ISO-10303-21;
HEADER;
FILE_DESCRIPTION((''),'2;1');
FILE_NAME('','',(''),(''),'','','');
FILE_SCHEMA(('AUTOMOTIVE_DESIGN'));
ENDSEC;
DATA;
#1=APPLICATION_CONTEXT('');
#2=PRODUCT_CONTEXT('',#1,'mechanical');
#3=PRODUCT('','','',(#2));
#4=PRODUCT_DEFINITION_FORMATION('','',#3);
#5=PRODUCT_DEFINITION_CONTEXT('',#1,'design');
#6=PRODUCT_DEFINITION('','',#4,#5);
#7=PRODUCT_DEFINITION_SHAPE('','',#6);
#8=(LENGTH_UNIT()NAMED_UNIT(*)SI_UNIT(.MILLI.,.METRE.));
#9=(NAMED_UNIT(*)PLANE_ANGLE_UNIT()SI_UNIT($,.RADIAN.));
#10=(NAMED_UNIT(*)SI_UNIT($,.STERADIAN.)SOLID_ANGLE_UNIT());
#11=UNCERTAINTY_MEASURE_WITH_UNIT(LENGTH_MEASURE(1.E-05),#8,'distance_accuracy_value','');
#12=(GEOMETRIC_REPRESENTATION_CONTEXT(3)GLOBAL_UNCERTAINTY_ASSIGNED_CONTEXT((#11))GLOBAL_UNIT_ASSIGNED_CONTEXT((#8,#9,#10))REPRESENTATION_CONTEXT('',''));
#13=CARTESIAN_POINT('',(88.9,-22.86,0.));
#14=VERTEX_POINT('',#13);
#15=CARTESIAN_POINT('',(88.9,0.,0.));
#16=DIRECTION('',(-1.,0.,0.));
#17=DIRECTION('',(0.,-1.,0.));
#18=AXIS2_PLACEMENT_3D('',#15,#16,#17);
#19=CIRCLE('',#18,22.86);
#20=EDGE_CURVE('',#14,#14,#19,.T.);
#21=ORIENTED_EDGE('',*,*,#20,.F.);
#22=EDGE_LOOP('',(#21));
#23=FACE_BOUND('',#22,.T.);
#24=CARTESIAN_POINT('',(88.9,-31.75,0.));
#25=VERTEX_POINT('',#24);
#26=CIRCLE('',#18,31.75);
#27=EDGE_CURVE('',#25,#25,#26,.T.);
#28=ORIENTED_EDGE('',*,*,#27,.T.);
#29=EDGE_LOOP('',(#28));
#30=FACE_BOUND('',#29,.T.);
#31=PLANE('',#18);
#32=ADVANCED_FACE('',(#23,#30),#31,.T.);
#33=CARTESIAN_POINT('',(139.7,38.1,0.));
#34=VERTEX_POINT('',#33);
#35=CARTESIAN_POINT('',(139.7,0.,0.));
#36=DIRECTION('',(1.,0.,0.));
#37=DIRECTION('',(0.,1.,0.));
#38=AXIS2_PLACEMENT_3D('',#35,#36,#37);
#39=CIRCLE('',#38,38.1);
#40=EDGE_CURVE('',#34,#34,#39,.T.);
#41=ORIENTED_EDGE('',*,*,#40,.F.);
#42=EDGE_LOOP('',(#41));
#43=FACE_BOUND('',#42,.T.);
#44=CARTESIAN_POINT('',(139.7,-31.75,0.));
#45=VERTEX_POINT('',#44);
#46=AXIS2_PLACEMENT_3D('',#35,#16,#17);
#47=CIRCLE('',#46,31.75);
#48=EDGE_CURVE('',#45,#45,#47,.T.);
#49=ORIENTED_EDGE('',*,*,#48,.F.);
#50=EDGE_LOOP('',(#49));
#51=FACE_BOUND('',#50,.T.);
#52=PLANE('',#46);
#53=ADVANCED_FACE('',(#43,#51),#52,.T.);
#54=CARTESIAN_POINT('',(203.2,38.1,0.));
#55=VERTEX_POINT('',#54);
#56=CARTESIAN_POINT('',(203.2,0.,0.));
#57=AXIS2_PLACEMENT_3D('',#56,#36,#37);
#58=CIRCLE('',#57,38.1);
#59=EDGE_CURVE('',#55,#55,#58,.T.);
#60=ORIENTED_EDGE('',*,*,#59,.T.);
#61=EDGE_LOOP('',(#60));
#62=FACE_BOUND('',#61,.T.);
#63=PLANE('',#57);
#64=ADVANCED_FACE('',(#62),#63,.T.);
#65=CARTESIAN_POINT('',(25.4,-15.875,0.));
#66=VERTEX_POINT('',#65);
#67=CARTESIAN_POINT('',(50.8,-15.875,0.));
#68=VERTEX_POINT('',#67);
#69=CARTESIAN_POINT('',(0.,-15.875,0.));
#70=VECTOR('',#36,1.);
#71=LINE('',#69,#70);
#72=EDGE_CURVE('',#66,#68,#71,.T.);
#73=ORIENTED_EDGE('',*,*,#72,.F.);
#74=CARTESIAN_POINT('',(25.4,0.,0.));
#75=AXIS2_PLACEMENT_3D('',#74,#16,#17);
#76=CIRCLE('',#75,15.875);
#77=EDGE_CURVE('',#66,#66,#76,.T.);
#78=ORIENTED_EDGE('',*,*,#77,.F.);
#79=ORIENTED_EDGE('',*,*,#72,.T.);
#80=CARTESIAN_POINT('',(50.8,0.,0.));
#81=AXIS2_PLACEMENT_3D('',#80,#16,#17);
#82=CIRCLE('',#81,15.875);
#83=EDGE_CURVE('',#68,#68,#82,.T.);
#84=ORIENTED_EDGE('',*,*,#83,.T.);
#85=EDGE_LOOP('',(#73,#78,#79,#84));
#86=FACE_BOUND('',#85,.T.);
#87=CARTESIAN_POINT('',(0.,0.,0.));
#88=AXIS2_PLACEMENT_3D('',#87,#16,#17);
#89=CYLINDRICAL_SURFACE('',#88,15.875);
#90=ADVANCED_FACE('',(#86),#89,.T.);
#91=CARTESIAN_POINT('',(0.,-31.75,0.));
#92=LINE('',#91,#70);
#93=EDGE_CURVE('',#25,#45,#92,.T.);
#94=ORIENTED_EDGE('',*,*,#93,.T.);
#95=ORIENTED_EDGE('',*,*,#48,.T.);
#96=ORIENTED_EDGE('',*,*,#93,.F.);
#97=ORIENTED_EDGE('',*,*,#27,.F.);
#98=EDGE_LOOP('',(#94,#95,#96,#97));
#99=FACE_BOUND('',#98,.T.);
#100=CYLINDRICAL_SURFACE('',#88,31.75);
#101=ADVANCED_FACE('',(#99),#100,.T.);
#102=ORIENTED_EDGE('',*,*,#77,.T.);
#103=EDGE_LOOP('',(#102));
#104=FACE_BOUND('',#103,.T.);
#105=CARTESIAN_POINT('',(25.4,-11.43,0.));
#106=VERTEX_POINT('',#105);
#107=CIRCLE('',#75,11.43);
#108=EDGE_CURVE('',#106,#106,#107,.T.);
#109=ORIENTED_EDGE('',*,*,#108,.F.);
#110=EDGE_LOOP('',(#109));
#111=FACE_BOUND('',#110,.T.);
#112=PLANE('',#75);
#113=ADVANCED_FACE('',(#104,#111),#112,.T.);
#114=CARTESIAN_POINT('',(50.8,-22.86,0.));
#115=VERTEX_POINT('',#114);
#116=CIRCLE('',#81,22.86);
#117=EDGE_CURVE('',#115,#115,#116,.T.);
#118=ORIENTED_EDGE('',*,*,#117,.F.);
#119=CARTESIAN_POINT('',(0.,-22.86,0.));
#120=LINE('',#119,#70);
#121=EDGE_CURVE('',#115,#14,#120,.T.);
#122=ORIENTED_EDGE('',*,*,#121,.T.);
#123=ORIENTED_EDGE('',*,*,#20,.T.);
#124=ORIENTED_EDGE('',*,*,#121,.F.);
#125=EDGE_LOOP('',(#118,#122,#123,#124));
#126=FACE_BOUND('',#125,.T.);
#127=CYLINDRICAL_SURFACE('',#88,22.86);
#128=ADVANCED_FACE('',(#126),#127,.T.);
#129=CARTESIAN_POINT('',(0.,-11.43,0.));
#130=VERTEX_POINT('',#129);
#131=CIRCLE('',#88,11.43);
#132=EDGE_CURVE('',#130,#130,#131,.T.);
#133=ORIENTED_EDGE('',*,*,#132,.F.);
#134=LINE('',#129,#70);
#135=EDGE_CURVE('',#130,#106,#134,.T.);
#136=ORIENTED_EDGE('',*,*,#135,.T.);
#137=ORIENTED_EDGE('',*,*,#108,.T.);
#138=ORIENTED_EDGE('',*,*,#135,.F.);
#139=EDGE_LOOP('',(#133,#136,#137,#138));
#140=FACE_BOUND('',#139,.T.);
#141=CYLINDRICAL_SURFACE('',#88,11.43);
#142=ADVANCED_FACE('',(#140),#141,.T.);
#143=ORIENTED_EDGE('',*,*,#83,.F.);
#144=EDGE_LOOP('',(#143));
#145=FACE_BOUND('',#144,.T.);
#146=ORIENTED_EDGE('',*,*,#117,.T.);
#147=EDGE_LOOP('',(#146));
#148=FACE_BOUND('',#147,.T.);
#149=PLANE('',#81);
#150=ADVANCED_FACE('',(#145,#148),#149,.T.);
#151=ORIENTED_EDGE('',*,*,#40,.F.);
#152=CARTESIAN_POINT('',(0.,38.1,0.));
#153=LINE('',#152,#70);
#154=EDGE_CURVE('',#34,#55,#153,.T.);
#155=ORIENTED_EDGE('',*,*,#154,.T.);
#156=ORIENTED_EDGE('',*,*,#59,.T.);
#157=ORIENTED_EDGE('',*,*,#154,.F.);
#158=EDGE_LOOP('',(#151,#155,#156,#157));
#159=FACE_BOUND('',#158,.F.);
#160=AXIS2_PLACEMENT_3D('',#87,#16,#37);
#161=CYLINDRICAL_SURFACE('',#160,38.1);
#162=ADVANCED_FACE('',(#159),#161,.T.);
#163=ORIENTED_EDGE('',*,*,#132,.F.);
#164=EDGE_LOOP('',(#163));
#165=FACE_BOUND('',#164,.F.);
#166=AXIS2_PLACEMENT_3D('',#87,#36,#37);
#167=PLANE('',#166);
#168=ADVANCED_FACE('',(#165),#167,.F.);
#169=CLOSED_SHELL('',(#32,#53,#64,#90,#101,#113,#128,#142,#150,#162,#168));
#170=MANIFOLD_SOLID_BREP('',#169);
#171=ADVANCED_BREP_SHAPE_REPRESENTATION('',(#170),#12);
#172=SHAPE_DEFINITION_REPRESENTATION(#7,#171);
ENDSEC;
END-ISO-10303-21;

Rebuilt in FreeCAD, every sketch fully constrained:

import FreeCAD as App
import Part
import Sketcher
from FreeCAD import Vector
Q = App.Units.Quantity

doc = App.newDocument("Part")
body = doc.addObject("PartDesign::Body", "Body")

sketch1 = doc.addObject("Sketcher::SketchObject", "Sketch")
body.addObject(sketch1)
sketch1.AttachmentSupport = (doc.YZ_Plane, [""])
sketch1.MapMode = "FlatFace"
sketch1.addGeometry(Part.Circle(Vector(0, 0, 0), Vector(0, 0, 1), 38), False)
sketch1.addConstraint(Sketcher.Constraint("Coincident", 0, 3, -1, 1))
sketch1.addConstraint(Sketcher.Constraint("Diameter", 0, Q("3 in")))
pad1 = doc.addObject("PartDesign::Pad", "Pad")
body.addObject(pad1)
pad1.Profile = sketch1
pad1.Length = Q("8 in")

sketch2 = doc.addObject("Sketcher::SketchObject", "Sketch001")
body.addObject(sketch2)
sketch2.AttachmentSupport = (doc.YZ_Plane, [""])
sketch2.MapMode = "FlatFace"
sketch2.addGeometry(Part.Circle(Vector(0, 0, 0), Vector(0, 0, 1), 38), False)
sketch2.addGeometry(Part.Circle(Vector(0, 0, 0), Vector(0, 0, 1), 32), False)
sketch2.addConstraint(Sketcher.Constraint("Coincident", 0, 3, -1, 1))
sketch2.addConstraint(Sketcher.Constraint("Coincident", 1, 3, -1, 1))
sketch2.addConstraint(Sketcher.Constraint("Diameter", 0, Q("3 in")))
sketch2.addConstraint(Sketcher.Constraint("Diameter", 1, Q("2.5 in")))
pocket1 = doc.addObject("PartDesign::Pocket", "Pocket")
body.addObject(pocket1)
pocket1.Profile = sketch2
pocket1.Length = Q("5.5 in")
pocket1.Reversed = True

sketch3 = doc.addObject("Sketcher::SketchObject", "Sketch002")
body.addObject(sketch3)
sketch3.AttachmentSupport = (doc.YZ_Plane, [""])
sketch3.MapMode = "FlatFace"
sketch3.addGeometry(Part.Circle(Vector(0, 0, 0), Vector(0, 0, 1), 32), False)
sketch3.addGeometry(Part.Circle(Vector(0, 0, 0), Vector(0, 0, 1), 23), False)
sketch3.addConstraint(Sketcher.Constraint("Coincident", 0, 3, -1, 1))
sketch3.addConstraint(Sketcher.Constraint("Coincident", 1, 3, -1, 1))
sketch3.addConstraint(Sketcher.Constraint("Diameter", 0, Q("2.5 in")))
sketch3.addConstraint(Sketcher.Constraint("Diameter", 1, Q("1.8 in")))
pocket2 = doc.addObject("PartDesign::Pocket", "Pocket001")
body.addObject(pocket2)
pocket2.Profile = sketch3
pocket2.Length = Q("3.5 in")
pocket2.Reversed = True

sketch4 = doc.addObject("Sketcher::SketchObject", "Sketch003")
body.addObject(sketch4)
sketch4.AttachmentSupport = (doc.YZ_Plane, [""])
sketch4.MapMode = "FlatFace"
sketch4.addGeometry(Part.Circle(Vector(0, 0, 0), Vector(0, 0, 1), 32), False)
sketch4.addGeometry(Part.Circle(Vector(0, 0, 0), Vector(0, 0, 1), 16), False)
sketch4.addConstraint(Sketcher.Constraint("Coincident", 0, 3, -1, 1))
sketch4.addConstraint(Sketcher.Constraint("Coincident", 1, 3, -1, 1))
sketch4.addConstraint(Sketcher.Constraint("Diameter", 0, Q("2.5 in")))
sketch4.addConstraint(Sketcher.Constraint("Diameter", 1, Q("1.25 in")))
pocket3 = doc.addObject("PartDesign::Pocket", "Pocket002")
body.addObject(pocket3)
pocket3.Profile = sketch4
pocket3.Length = Q("2 in")
pocket3.Reversed = True

sketch5 = doc.addObject("Sketcher::SketchObject", "Sketch004")
body.addObject(sketch5)
sketch5.AttachmentSupport = (doc.YZ_Plane, [""])
sketch5.MapMode = "FlatFace"
sketch5.addGeometry(Part.Circle(Vector(0, 0, 0), Vector(0, 0, 1), 16), False)
sketch5.addGeometry(Part.Circle(Vector(0, 0, 0), Vector(0, 0, 1), 11), False)
sketch5.addConstraint(Sketcher.Constraint("Coincident", 0, 3, -1, 1))
sketch5.addConstraint(Sketcher.Constraint("Coincident", 1, 3, -1, 1))
sketch5.addConstraint(Sketcher.Constraint("Diameter", 1, Q("0.9 in")))
sketch5.addConstraint(Sketcher.Constraint("Diameter", 0, Q("1.25 in")))
pocket4 = doc.addObject("PartDesign::Pocket", "Pocket003")
body.addObject(pocket4)
pocket4.Profile = sketch5
pocket4.Length = Q("1 in")
pocket4.Reversed = True

doc.recompute()
